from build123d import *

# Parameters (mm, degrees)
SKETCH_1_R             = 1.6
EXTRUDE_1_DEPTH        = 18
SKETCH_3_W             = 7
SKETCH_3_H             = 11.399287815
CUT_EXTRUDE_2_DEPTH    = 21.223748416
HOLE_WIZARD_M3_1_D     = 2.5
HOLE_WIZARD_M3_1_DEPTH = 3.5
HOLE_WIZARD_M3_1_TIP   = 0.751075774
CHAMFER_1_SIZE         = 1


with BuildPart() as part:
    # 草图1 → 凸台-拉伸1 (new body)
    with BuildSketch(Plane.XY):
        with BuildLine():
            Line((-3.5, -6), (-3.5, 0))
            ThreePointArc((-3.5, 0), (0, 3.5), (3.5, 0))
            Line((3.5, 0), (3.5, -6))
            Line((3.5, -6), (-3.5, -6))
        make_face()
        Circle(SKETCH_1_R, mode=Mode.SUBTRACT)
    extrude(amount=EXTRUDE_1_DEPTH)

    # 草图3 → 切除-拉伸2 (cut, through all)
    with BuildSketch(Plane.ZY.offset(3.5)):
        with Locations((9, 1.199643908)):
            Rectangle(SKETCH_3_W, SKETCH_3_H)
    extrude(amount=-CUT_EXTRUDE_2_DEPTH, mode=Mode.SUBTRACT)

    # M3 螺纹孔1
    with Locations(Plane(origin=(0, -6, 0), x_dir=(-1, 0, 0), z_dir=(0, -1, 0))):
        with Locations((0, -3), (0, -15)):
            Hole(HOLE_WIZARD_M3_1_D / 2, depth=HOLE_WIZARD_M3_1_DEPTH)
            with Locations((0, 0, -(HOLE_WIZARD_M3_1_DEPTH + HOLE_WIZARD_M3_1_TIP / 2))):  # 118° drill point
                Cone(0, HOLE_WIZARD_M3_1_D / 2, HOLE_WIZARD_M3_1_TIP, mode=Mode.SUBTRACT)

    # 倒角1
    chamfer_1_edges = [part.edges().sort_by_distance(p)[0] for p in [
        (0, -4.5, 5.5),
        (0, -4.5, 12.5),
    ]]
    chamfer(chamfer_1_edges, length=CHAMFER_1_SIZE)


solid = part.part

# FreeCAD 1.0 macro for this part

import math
import FreeCAD as App
import Part
import Sketcher
Q = App.Units.Quantity


def edges_at(feature, points):
    """Names of the edges that pass closest to the given points."""
    edges = feature.Shape.Edges
    near = lambda p: min(range(len(edges)), key=lambda i: edges[i].distToShape(Part.Vertex(*p))[0])
    return sorted({f"Edge{near(p) + 1}" for p in points})


def add_polygon(sketch, points):
    """Adds a closed chain of lines whose ends are joined by coincident constraints."""
    first, n = sketch.GeometryCount, len(points)
    for a, b in zip(points, points[1:] + points[:1]):
        sketch.addGeometry(Part.LineSegment(App.Vector(*a, 0), App.Vector(*b, 0)), False)
    for i in range(n):
        sketch.addConstraint(Sketcher.Constraint("Coincident", first + i, 2, first + (i + 1) % n, 1))

doc = App.newDocument("Part")
params = doc.addObject("Spreadsheet::Sheet", "Params")
for row, (alias, value) in enumerate([
    ("sketch1_diameter", "3.2 mm"),
    ("sketch1_radius", "3.5 mm"),
    ("sketch1_height", "6 mm"),
    ("pad1_length", "18 mm"),
    ("sketch2_height", "7 mm"),
    ("sketch3_diameter", "2.5 mm"),
    ("hole_diameter", "2.5 mm"),
    ("hole_depth", "3.5 mm"),
    ("chamfer_size", "1 mm"),
], start=1):
    params.set(f"A{row}", alias)
    params.set(f"B{row}", "=" + value)
    params.setAlias(f"B{row}", alias)

body = doc.addObject("PartDesign::Body", "Body")

sketch1 = doc.addObject("Sketcher::SketchObject", "Sketch")
body.addObject(sketch1)
sketch1.AttachmentSupport = (doc.XY_Plane, [""])
sketch1.MapMode = "FlatFace"
sketch1.addGeometry(Part.LineSegment(App.Vector(-3.5, 0, 0), App.Vector(-3.5, -6, 0)), False)
sketch1.addGeometry(Part.LineSegment(App.Vector(-3.5, -6, 0), App.Vector(3.5, -6, 0)), False)
sketch1.addGeometry(Part.LineSegment(App.Vector(3.5, -6, 0), App.Vector(3.5, 0, 0)), False)
sketch1.addGeometry(Part.ArcOfCircle(Part.Circle(App.Vector(0, 0, 0), App.Vector(0, 0, 1), 3.5), math.radians(0), math.radians(180)), False)
sketch1.addGeometry(Part.Circle(App.Vector(0, 0, 0), App.Vector(0, 0, 1), 1.6), False)
sketch1.addConstraint(Sketcher.Constraint("Coincident", 0, 2, 1, 1))
sketch1.addConstraint(Sketcher.Constraint("Coincident", 1, 2, 2, 1))
sketch1.addConstraint(Sketcher.Constraint("Tangent", 2, 2, 3, 1))
sketch1.addConstraint(Sketcher.Constraint("Tangent", 3, 2, 0, 1))
sketch1.addConstraint(Sketcher.Constraint("Vertical", 0))
sketch1.addConstraint(Sketcher.Constraint("Horizontal", 1))
sketch1.addConstraint(Sketcher.Constraint("Vertical", 2))
sketch1.addConstraint(Sketcher.Constraint("Coincident", 3, 3, -1, 1))
sketch1.addConstraint(Sketcher.Constraint("Coincident", 4, 3, -1, 1))
sketch1.addConstraint(Sketcher.Constraint("Diameter", 4, Q("3.2 mm")))
sketch1.addConstraint(Sketcher.Constraint("Radius", 3, Q("3.5 mm")))
sketch1.addConstraint(Sketcher.Constraint("DistanceY", 0, 2, 0, 1, Q("6 mm")))
sketch1.setExpression("Constraints[9]", "Params.sketch1_diameter")
sketch1.setExpression("Constraints[10]", "Params.sketch1_radius")
sketch1.setExpression("Constraints[11]", "Params.sketch1_height")
pad1 = doc.addObject("PartDesign::Pad", "Pad")
body.addObject(pad1)
pad1.Profile = sketch1
pad1.setExpression("Length", "Params.pad1_length")

sketch2 = doc.addObject("Sketcher::SketchObject", "Sketch001")
body.addObject(sketch2)
sketch2.AttachmentSupport = (doc.YZ_Plane, [""])
sketch2.MapMode = "FlatFace"
sketch2.AttachmentOffset = App.Placement(App.Vector(0, 0, -3.5), App.Rotation())
add_polygon(sketch2, [(7, 6), (-4, 6), (-4, 12), (7, 12)])
sketch2.addConstraint(Sketcher.Constraint("Horizontal", 0))
sketch2.addConstraint(Sketcher.Constraint("Vertical", 1))
sketch2.addConstraint(Sketcher.Constraint("Horizontal", 2))
sketch2.addConstraint(Sketcher.Constraint("Vertical", 3))
sketch2.addConstraint(Sketcher.Constraint("DistanceY", 1, 1, 1, 2, Q("7 mm")))
sketch2.addConstraint(Sketcher.Constraint("DistanceX", 0, 2, -1, 1, Q("4.5 mm")))
sketch2.addConstraint(Sketcher.Constraint("DistanceY", -1, 1, 0, 2, Q("5.5 mm")))
sketch2.addConstraint(Sketcher.Constraint("DistanceX", 0, 2, 0, 1, Q("11.399288 mm")))
sketch2.setExpression("Constraints[8]", "Params.sketch2_height")
pocket1 = doc.addObject("PartDesign::Pocket", "Pocket")
body.addObject(pocket1)
pocket1.Profile = sketch2
pocket1.Type = "ThroughAll"
pocket1.Reversed = True

sketch3 = doc.addObject("Sketcher::SketchObject", "Sketch002")
body.addObject(sketch3)
sketch3.AttachmentSupport = (doc.XZ_Plane, [""])
sketch3.MapMode = "FlatFace"
sketch3.AttachmentOffset = App.Placement(App.Vector(0, 0, 6), App.Rotation())
sketch3.addGeometry(Part.Circle(App.Vector(0, 3, 0), App.Vector(0, 0, 1), 1.2), False)
sketch3.addGeometry(Part.Circle(App.Vector(0, 15, 0), App.Vector(0, 0, 1), 1.2), False)
sketch3.addConstraint(Sketcher.Constraint("Equal", 0, 1))
sketch3.addConstraint(Sketcher.Constraint("PointOnObject", 0, 3, -2))
sketch3.addConstraint(Sketcher.Constraint("PointOnObject", 1, 3, -2))
sketch3.addConstraint(Sketcher.Constraint("Diameter", 0, Q("2.5 mm")))
sketch3.addConstraint(Sketcher.Constraint("DistanceY", -1, 1, 0, 3, Q("3 mm")))
sketch3.addConstraint(Sketcher.Constraint("DistanceY", -1, 1, 1, 3, Q("15 mm")))
sketch3.setExpression("Constraints[3]", "Params.sketch3_diameter")
doc.recompute()
hole = doc.addObject("PartDesign::Hole", "Hole")
body.addObject(hole)
hole.Profile = sketch3
hole.ThreadType = "None"
hole.setExpression("Diameter", "Params.hole_diameter")
hole.DepthType = "Dimension"
hole.setExpression("Depth", "Params.hole_depth")
hole.DrillPoint = "Angled"
hole.DrillPointAngle = 118
doc.recompute()

chamfer = doc.addObject("PartDesign::Chamfer", "Chamfer")
body.addObject(chamfer)
chamfer.Base = (hole, edges_at(hole, [(0, -4.5, 5.5), (0, -4.5, 12.5)]))
chamfer.setExpression("Size", "Params.chamfer_size")

doc.recompute()
